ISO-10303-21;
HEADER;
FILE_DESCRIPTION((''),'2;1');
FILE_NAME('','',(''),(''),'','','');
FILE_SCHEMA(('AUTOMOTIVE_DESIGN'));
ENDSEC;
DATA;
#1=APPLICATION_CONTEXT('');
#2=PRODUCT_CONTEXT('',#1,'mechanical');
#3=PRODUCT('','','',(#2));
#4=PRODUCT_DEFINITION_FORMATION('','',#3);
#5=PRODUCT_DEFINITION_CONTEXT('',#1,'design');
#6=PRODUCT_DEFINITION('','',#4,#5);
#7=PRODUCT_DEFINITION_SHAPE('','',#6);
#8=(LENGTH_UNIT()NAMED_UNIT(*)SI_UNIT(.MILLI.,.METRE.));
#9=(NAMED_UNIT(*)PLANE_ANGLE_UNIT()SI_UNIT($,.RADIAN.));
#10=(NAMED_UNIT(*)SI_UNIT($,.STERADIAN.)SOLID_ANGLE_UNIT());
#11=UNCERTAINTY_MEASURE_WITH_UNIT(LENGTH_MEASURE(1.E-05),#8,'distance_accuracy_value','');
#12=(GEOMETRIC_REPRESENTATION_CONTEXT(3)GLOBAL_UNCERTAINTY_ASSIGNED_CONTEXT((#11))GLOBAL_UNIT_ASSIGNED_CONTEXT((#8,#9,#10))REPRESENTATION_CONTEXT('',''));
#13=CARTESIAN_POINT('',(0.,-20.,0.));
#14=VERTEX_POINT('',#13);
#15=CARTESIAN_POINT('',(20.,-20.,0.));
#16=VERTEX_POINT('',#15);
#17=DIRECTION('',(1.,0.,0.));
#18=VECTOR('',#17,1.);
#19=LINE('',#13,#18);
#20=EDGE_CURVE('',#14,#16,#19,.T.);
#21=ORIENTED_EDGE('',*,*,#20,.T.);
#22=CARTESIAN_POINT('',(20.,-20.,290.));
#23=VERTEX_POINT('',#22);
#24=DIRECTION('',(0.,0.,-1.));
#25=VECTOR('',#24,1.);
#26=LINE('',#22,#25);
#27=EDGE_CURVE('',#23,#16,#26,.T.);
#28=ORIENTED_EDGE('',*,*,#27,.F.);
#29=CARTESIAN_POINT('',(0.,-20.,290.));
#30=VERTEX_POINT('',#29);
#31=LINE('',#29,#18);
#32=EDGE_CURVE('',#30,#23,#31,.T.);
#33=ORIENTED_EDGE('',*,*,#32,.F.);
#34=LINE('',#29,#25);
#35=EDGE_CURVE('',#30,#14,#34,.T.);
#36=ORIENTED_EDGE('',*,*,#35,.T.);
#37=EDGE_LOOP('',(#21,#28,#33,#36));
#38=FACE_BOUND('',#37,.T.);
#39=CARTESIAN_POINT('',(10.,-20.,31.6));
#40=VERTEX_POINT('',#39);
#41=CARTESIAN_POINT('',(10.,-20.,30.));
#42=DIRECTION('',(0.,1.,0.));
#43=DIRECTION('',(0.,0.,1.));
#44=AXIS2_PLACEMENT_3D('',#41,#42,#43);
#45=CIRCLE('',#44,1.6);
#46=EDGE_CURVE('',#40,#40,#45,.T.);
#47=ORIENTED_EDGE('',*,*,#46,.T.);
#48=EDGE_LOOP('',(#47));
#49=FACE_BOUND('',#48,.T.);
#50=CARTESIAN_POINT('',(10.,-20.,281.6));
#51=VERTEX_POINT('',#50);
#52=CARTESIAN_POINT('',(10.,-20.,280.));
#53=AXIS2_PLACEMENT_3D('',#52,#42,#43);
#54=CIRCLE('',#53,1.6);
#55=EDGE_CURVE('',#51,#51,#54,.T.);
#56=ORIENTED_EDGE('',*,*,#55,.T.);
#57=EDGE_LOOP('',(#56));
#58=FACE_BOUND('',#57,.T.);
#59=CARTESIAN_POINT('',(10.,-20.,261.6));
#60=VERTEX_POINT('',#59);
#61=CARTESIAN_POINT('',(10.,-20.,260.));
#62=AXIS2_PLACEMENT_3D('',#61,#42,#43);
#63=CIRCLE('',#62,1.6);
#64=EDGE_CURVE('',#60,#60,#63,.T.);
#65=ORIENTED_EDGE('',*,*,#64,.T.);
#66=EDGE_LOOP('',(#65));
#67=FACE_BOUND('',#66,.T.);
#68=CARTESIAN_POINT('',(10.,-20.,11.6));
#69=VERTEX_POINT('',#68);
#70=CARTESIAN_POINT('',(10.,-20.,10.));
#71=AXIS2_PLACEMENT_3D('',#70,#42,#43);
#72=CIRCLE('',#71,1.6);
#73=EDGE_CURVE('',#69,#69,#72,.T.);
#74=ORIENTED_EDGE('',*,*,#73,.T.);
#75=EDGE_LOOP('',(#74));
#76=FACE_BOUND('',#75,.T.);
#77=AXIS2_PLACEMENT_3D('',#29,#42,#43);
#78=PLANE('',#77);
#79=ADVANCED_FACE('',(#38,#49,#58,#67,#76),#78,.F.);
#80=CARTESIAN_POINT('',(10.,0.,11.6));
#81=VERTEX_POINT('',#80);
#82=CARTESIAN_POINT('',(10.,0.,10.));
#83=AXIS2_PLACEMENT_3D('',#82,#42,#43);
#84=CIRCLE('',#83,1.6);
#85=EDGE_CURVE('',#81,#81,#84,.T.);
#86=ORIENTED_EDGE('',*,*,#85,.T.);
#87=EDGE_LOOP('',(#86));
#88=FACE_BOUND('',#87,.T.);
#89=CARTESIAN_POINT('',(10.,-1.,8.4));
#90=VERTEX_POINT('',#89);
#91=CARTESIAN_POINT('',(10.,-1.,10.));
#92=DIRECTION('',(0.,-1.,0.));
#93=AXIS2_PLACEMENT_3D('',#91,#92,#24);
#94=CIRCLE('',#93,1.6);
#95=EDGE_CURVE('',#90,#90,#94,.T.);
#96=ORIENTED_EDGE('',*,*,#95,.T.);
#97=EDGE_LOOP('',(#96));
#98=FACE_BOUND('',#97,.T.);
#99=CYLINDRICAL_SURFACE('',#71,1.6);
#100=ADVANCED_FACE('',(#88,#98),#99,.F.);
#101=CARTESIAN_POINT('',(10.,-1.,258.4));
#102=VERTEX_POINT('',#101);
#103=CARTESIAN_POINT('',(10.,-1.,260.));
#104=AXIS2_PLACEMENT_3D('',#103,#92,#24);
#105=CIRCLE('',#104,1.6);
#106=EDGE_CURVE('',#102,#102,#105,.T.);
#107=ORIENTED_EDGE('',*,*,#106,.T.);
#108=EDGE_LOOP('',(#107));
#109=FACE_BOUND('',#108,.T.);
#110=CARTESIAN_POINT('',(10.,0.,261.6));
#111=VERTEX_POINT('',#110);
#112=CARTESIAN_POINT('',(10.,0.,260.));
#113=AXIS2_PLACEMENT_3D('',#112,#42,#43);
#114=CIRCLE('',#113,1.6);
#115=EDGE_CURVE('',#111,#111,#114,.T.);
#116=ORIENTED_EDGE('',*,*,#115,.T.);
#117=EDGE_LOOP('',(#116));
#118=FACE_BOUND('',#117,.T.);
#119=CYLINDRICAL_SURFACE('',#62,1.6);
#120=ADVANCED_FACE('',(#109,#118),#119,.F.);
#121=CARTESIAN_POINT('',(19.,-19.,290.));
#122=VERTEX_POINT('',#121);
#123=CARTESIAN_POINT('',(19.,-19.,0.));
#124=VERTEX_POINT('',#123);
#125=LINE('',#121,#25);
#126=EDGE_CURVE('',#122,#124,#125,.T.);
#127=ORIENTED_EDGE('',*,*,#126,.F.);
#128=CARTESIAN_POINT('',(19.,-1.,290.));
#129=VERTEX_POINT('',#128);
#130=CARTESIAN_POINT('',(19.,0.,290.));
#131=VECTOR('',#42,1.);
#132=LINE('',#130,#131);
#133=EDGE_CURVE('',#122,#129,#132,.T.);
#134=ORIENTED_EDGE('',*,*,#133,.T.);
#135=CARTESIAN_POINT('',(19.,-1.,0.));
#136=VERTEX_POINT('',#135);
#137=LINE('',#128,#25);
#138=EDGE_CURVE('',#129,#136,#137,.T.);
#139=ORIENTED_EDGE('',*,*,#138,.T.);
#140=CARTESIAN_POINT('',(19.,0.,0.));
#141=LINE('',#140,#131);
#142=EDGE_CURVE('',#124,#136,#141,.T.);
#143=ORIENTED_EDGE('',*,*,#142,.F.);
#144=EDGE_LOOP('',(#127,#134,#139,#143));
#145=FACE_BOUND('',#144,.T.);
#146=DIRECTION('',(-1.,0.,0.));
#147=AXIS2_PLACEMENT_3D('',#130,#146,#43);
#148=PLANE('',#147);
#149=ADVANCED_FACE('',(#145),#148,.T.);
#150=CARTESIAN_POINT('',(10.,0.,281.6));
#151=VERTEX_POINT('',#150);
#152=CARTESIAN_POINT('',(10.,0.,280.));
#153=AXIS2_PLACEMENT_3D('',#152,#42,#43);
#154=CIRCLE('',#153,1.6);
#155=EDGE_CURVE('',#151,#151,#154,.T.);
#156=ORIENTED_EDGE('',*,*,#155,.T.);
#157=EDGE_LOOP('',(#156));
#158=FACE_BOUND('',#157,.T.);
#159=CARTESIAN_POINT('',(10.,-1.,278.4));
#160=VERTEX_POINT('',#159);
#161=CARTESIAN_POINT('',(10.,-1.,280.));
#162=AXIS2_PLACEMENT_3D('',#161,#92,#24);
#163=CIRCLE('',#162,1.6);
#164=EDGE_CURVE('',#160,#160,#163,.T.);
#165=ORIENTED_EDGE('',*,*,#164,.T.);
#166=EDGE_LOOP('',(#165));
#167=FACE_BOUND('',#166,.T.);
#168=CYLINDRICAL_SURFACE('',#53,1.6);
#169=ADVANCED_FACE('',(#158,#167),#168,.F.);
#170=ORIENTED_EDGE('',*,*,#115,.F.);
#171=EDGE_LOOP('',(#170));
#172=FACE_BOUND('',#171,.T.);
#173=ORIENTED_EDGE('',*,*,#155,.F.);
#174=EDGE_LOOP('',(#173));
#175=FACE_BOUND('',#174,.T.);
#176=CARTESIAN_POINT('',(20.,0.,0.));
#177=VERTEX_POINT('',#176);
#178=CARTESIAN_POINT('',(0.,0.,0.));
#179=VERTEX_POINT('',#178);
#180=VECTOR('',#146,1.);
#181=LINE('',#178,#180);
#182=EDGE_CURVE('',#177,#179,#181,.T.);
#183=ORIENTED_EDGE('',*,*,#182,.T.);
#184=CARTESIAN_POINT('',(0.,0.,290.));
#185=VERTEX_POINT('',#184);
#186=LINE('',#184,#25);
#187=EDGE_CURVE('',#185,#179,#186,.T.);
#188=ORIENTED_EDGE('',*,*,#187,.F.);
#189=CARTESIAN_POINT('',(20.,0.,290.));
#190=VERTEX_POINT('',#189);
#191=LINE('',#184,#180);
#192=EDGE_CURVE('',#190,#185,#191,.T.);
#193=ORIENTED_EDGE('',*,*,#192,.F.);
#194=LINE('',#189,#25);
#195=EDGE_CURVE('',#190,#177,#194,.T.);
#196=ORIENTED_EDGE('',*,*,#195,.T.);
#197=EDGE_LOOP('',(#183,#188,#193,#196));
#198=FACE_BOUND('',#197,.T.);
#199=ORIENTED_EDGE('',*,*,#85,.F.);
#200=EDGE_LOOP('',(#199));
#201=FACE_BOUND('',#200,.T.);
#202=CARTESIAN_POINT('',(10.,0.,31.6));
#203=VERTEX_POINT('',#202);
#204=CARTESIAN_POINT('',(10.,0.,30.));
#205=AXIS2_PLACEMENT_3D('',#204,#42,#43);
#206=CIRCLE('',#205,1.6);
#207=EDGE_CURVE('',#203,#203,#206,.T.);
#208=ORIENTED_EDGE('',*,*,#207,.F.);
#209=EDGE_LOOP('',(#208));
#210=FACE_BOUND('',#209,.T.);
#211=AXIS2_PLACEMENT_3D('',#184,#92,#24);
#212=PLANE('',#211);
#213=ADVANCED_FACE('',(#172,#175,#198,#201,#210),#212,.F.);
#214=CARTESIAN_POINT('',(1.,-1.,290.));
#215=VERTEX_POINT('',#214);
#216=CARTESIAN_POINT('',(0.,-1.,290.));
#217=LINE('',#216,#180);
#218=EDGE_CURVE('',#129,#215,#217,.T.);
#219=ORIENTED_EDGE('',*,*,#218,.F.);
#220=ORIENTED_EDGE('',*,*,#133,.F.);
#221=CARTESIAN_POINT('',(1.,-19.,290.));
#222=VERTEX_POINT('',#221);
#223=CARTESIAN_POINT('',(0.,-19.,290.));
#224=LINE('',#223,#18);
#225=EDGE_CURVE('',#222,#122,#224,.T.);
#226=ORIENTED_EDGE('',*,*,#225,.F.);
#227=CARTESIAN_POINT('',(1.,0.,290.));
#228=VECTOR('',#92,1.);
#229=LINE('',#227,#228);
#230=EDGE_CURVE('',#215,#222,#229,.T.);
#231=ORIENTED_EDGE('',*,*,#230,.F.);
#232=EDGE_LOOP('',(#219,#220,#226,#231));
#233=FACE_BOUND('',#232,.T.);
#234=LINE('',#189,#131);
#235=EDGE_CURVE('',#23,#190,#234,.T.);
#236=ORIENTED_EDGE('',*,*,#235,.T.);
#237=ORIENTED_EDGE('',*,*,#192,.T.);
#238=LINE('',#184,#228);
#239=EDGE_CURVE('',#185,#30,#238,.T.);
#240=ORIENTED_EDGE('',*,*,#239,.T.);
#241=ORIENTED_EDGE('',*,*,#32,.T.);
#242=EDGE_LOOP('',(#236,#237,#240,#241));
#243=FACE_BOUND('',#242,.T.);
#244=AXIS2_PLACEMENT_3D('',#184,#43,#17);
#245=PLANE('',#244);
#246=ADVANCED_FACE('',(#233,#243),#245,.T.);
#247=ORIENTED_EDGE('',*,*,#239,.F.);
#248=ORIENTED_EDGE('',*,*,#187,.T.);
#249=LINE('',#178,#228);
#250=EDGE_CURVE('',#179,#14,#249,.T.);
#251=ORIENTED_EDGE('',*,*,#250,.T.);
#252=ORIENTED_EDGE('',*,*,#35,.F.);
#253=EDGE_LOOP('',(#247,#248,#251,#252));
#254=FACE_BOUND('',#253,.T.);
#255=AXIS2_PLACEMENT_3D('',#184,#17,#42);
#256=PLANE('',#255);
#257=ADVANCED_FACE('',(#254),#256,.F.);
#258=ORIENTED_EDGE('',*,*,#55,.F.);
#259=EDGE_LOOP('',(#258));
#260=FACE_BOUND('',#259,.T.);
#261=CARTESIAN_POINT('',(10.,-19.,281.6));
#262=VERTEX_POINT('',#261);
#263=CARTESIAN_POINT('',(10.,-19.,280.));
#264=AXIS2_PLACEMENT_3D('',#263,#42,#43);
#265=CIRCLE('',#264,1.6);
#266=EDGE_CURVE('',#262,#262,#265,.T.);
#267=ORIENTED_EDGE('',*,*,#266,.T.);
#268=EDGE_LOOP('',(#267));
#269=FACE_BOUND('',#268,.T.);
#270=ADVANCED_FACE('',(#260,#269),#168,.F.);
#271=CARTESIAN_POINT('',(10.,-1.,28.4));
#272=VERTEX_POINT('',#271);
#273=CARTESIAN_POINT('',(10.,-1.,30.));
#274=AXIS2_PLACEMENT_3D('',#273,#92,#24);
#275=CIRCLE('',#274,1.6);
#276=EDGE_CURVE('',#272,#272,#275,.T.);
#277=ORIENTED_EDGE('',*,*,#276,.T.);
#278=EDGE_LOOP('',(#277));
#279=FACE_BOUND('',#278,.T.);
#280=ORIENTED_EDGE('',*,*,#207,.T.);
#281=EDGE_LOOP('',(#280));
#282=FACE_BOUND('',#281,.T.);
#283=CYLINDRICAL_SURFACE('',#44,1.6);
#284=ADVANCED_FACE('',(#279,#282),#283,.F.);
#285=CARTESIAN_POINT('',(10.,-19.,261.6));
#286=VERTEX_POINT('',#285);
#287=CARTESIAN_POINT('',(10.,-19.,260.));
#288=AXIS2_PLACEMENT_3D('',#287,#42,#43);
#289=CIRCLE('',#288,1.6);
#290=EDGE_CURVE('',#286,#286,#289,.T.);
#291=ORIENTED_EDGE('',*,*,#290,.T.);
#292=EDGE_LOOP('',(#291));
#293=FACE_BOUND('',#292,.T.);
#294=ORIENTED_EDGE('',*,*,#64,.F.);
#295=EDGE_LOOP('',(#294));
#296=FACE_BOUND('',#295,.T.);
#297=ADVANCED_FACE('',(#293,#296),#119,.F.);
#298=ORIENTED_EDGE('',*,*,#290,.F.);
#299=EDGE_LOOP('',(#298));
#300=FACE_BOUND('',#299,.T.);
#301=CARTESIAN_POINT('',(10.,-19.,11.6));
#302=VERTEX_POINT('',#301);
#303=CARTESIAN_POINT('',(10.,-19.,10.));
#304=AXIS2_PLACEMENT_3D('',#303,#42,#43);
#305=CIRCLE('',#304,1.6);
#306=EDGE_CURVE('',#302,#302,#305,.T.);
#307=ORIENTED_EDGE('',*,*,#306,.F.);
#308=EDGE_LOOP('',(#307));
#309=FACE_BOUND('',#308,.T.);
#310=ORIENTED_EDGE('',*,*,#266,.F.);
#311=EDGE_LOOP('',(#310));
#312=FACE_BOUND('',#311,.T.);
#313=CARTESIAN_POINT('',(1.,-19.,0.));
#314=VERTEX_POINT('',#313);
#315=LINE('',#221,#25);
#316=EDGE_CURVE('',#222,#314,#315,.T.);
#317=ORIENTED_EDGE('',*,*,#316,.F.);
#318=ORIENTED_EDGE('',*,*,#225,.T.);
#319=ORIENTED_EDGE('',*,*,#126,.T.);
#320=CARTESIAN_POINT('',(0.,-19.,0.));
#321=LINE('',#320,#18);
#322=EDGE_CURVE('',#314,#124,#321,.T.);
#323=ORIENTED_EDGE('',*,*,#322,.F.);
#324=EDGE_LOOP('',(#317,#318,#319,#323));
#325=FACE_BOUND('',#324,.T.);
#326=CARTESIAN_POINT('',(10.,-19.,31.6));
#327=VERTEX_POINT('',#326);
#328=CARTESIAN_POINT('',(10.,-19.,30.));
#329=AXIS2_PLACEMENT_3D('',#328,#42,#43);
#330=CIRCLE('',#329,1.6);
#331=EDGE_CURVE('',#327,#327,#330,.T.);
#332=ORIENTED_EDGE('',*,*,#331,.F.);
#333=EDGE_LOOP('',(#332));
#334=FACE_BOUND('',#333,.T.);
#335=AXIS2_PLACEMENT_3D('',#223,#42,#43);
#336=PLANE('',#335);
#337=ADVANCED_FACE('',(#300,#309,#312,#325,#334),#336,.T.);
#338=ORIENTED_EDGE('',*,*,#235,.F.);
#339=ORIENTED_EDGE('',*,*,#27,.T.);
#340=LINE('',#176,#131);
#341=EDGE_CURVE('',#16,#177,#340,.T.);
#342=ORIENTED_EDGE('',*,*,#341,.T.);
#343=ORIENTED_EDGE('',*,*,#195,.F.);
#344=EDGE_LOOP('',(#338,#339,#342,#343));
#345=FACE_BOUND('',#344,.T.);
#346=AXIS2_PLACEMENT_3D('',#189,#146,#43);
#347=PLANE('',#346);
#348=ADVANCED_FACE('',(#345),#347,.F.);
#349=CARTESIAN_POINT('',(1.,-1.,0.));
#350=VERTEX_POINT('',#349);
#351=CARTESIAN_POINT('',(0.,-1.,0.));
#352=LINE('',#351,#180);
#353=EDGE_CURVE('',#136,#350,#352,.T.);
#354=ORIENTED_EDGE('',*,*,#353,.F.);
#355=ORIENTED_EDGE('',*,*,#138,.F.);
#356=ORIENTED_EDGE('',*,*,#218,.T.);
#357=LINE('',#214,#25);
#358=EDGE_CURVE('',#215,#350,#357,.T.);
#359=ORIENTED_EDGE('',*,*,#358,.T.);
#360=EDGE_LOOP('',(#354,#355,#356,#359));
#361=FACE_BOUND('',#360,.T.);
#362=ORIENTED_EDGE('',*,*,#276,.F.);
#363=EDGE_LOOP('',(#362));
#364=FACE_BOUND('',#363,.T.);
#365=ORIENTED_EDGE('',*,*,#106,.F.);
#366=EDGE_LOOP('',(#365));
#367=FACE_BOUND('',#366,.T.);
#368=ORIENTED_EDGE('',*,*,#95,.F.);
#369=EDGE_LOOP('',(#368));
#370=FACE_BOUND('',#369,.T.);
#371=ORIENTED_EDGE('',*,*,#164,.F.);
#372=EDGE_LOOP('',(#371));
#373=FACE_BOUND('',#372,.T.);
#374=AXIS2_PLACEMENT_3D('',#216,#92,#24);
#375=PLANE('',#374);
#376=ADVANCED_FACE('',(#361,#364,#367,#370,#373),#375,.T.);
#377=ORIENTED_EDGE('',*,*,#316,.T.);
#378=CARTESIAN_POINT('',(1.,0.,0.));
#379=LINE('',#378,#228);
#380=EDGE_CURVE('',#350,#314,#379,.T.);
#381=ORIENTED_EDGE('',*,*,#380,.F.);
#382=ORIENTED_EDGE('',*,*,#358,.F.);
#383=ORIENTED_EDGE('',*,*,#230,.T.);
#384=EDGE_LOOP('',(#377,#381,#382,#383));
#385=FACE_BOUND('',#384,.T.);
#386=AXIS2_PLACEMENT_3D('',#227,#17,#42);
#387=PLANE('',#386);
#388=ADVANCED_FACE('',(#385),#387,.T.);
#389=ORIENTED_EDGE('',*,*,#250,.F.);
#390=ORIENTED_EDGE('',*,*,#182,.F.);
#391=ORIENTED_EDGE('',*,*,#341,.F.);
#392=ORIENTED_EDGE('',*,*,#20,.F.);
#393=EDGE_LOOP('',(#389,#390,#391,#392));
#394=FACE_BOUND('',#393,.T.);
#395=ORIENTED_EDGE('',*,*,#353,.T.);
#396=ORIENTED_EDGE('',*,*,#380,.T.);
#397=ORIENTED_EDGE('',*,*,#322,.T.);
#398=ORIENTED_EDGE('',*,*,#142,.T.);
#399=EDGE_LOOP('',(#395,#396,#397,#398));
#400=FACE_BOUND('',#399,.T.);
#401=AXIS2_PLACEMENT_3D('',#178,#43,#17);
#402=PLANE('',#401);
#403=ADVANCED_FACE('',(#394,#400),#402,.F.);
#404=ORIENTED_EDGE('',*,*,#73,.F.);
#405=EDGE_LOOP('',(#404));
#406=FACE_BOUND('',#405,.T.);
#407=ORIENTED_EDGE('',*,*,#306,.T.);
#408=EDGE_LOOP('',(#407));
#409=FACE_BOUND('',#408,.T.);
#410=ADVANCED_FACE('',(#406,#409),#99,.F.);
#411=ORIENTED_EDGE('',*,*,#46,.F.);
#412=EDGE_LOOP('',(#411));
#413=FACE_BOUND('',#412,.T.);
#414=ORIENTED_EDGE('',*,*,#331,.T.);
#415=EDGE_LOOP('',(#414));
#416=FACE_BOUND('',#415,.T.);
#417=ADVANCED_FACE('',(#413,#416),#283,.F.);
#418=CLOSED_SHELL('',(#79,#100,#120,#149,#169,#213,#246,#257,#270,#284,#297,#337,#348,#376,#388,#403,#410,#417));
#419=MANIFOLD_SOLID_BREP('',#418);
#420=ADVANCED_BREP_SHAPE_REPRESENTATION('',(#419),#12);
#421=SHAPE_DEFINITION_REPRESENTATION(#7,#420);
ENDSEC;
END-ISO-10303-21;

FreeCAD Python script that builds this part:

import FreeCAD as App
import Part
import Sketcher

V = App.Vector

doc = App.newDocument("Part")
body = doc.addObject("PartDesign::Body", "Body")

# Sketch on XY plane
sketch1 = body.newObject("Sketcher::SketchObject", "Sketch")
sketch1.AttachmentSupport = (doc.getObject("XY_Plane"), [""])
sketch1.MapMode = "FlatFace"
sketch1.addGeometry([
    Part.LineSegment(V(0, 0, 0), V(0, -20, 0)),  # 0
    Part.LineSegment(V(0, -20, 0), V(20, -20, 0)),  # 1
    Part.LineSegment(V(20, -20, 0), V(20, 0, 0)),  # 2
    Part.LineSegment(V(20, 0, 0), V(0, 0, 0)),  # 3
    Part.LineSegment(V(19, -19, 0), V(1, -19, 0)),  # 4
    Part.LineSegment(V(1, -19, 0), V(1, -1, 0)),  # 5
    Part.LineSegment(V(1, -1, 0), V(19, -1, 0)),  # 6
    Part.LineSegment(V(19, -1, 0), V(19, -19, 0)),  # 7
], False)
sketch1.addConstraint([
    Sketcher.Constraint("Coincident", 0, 2, 1, 1),
    Sketcher.Constraint("Coincident", 1, 2, 2, 1),
    Sketcher.Constraint("Coincident", 2, 2, 3, 1),
    Sketcher.Constraint("Coincident", 3, 2, 0, 1),
    Sketcher.Constraint("Coincident", 4, 2, 5, 1),
    Sketcher.Constraint("Coincident", 5, 2, 6, 1),
    Sketcher.Constraint("Coincident", 6, 2, 7, 1),
    Sketcher.Constraint("Coincident", 7, 2, 4, 1),
    Sketcher.Constraint("Vertical", 0),
    Sketcher.Constraint("Horizontal", 1),
    Sketcher.Constraint("Vertical", 2),
    Sketcher.Constraint("Horizontal", 3),
    Sketcher.Constraint("Horizontal", 4),
    Sketcher.Constraint("Vertical", 5),
    Sketcher.Constraint("Horizontal", 6),
    Sketcher.Constraint("Vertical", 7),
    Sketcher.Constraint("Coincident", 3, 2, -1, 1),
    Sketcher.Constraint("Equal", 3, 0),
    Sketcher.Constraint("Equal", 6, 5),
    Sketcher.Constraint("DistanceX", 1, 1, 1, 2, 20.0),
    Sketcher.Constraint("DistanceX", 4, 2, 4, 1, 18.0),
    Sketcher.Constraint("DistanceX", -1, 1, 4, 2, 1.0),
    Sketcher.Constraint("DistanceY", 4, 2, -1, 1, 19.0),
])
pad1 = body.newObject("PartDesign::Pad", "Pad")
pad1.Profile = sketch1
pad1.Length = 290

# Sketch on XZ plane
sketch2 = body.newObject("Sketcher::SketchObject", "Sketch001")
sketch2.AttachmentSupport = (doc.getObject("XZ_Plane"), [""])
sketch2.MapMode = "FlatFace"
sketch2.addGeometry([
    Part.Circle(V(10, 280, 0), V(0, 0, 1), 1.6),
    Part.Circle(V(10, 260, 0), V(0, 0, 1), 1.6),
    Part.Circle(V(10, 30, 0), V(0, 0, 1), 1.6),
    Part.Circle(V(10, 10, 0), V(0, 0, 1), 1.6),
], False)
sketch2.addConstraint([
    Sketcher.Constraint("Equal", 0, 1),
    Sketcher.Constraint("Equal", 1, 2),
    Sketcher.Constraint("Equal", 2, 3),
    Sketcher.Constraint("Vertical", 0, 3, 1, 3),
    Sketcher.Constraint("Vertical", 1, 3, 2, 3),
    Sketcher.Constraint("Vertical", 2, 3, 3, 3),
    Sketcher.Constraint("Diameter", 0, 3.2),
    Sketcher.Constraint("DistanceX", -1, 1, 0, 3, 10.0),
    Sketcher.Constraint("DistanceY", -1, 1, 0, 3, 280.0),
    Sketcher.Constraint("DistanceY", -1, 1, 1, 3, 260.0),
    Sketcher.Constraint("DistanceY", -1, 1, 2, 3, 30.0),
    Sketcher.Constraint("DistanceY", -1, 1, 3, 3, 10.0),
])
pocket1 = body.newObject("PartDesign::Pocket", "Pocket")
pocket1.Profile = sketch2
pocket1.Type = "ThroughAll"
pocket1.Reversed = True

doc.recompute()
